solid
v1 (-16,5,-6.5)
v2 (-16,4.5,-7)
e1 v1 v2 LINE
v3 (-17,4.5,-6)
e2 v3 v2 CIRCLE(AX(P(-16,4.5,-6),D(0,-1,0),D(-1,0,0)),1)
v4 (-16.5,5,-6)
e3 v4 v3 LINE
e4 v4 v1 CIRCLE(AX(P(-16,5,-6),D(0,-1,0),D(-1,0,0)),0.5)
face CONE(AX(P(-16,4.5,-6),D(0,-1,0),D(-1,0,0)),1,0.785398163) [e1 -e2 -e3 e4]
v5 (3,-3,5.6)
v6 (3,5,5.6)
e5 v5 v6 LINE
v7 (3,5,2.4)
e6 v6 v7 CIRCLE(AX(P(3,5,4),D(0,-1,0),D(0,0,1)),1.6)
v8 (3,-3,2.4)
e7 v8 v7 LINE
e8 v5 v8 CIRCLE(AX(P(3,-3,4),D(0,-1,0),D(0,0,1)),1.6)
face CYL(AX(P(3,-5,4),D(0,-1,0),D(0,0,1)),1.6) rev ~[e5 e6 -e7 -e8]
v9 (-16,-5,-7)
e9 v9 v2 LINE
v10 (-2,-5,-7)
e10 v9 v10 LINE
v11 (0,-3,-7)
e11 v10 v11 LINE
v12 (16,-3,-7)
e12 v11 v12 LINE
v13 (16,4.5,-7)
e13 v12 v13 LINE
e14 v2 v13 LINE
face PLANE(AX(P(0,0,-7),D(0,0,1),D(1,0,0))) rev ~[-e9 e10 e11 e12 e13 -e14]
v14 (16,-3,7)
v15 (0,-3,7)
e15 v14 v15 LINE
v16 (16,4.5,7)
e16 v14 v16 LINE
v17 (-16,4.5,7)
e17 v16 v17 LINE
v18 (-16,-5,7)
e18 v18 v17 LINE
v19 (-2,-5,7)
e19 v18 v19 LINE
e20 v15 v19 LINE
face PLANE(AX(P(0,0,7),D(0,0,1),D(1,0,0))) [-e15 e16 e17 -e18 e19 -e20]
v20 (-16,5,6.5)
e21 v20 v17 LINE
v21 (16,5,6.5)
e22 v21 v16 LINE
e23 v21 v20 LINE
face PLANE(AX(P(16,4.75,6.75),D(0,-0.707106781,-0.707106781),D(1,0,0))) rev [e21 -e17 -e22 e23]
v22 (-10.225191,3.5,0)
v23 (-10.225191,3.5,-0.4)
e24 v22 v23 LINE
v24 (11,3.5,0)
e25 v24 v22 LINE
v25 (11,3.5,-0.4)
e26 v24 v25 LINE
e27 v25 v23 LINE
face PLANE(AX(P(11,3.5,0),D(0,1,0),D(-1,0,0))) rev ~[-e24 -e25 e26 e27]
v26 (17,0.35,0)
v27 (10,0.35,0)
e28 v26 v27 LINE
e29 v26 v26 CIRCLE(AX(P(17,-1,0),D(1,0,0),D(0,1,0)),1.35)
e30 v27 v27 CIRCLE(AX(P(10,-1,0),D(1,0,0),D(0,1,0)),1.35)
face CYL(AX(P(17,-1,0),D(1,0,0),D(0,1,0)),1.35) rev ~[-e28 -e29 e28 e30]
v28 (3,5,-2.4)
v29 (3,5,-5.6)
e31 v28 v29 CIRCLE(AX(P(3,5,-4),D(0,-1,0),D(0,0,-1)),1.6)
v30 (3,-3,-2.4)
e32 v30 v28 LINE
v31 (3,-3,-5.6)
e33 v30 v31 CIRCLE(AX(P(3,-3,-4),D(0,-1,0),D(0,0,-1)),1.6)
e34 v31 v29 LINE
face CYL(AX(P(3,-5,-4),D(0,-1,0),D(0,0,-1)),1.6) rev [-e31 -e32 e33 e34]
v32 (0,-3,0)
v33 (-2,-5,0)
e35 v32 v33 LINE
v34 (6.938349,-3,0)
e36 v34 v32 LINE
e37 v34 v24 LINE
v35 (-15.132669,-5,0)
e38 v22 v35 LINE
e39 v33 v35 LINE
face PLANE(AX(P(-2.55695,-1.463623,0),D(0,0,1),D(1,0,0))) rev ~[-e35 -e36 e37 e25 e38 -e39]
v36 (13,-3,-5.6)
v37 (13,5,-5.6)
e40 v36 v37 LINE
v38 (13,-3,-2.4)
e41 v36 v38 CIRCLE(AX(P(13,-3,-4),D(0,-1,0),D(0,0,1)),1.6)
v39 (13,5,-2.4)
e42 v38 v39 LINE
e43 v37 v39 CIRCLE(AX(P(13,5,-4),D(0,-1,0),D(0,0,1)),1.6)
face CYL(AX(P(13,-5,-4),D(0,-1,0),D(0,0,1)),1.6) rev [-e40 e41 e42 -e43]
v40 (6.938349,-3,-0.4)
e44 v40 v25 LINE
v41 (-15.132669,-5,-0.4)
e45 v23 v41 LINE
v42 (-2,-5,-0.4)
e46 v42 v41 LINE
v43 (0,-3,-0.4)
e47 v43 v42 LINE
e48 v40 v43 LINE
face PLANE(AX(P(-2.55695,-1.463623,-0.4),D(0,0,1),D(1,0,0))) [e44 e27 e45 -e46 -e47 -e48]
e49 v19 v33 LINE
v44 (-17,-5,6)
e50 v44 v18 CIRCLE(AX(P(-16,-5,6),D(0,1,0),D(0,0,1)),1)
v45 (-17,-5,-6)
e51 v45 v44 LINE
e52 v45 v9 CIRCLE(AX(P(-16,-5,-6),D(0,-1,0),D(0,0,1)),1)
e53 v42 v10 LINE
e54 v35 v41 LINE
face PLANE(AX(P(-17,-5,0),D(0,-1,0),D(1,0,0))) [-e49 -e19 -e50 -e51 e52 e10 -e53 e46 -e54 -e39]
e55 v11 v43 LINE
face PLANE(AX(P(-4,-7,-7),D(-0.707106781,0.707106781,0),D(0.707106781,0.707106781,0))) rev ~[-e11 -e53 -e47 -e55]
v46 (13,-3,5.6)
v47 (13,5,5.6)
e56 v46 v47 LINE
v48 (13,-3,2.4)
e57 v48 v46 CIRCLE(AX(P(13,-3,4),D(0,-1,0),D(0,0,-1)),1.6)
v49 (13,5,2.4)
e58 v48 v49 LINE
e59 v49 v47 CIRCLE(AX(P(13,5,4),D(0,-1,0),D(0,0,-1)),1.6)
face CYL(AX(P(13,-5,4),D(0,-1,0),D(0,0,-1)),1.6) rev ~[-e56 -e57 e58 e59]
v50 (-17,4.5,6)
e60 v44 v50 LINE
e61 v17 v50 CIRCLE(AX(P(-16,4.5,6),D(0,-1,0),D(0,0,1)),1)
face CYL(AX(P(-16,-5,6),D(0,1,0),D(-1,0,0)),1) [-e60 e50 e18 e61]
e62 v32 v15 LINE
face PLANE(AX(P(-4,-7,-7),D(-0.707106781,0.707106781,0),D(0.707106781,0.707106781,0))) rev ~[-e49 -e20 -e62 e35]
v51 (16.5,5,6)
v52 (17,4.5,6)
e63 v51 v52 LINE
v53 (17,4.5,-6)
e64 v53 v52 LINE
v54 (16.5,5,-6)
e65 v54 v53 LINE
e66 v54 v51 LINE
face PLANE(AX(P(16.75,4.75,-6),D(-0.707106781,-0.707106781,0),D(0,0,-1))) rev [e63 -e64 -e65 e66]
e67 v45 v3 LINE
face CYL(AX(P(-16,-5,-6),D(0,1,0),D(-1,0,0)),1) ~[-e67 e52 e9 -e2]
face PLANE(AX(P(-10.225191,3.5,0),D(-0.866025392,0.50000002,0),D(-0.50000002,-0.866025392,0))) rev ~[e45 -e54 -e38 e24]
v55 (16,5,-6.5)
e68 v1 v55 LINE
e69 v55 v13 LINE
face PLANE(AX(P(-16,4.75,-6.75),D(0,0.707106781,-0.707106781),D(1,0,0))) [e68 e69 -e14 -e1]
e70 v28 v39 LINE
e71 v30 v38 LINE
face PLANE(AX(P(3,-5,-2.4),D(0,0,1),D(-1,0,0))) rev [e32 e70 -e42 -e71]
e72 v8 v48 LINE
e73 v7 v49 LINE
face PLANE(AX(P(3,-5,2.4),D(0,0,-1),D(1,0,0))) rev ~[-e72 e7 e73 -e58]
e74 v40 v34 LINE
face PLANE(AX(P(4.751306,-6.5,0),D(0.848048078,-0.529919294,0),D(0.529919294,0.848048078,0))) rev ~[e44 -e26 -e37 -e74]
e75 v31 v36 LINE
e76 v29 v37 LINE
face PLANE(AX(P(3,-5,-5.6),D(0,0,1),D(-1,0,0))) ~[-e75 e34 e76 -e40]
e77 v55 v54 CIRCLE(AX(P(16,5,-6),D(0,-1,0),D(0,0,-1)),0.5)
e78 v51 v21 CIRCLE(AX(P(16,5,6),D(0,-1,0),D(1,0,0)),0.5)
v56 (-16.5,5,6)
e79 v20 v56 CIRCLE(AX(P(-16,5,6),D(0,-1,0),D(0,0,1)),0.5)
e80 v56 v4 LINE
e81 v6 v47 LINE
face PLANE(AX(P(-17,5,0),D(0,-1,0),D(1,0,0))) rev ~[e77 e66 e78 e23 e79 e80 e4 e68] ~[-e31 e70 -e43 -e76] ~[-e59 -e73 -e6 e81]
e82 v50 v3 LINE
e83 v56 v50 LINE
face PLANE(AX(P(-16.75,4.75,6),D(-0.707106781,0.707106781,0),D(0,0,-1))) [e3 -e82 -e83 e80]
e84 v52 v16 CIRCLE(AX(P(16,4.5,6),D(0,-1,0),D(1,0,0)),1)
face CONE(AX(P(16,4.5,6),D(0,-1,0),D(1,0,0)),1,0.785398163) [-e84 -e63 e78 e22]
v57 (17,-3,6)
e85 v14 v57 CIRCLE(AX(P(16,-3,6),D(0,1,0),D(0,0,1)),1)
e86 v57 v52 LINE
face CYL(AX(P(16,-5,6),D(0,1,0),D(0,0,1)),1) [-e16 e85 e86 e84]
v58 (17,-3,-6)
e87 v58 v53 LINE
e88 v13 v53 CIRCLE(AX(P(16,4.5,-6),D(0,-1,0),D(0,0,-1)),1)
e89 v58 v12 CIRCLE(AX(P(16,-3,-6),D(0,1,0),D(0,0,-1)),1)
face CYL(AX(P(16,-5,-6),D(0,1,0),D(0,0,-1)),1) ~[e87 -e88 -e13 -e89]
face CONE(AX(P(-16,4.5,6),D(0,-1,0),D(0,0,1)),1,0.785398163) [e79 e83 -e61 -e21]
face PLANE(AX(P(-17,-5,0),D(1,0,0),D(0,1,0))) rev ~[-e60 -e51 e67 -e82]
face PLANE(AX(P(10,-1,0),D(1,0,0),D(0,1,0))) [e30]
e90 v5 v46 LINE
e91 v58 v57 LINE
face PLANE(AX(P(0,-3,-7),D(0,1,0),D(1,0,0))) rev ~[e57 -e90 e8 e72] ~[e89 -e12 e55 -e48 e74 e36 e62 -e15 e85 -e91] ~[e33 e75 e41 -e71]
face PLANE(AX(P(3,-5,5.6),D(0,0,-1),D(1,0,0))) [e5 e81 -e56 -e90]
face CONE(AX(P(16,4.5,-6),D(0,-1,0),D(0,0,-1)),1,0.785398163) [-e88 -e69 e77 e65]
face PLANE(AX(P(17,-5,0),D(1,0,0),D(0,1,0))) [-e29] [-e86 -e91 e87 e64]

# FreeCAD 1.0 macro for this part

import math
import FreeCAD as App
import Part
import Sketcher
Q = App.Units.Quantity


def edges_at(feature, points):
    """Names of the edges that pass closest to the given points."""
    edges = feature.Shape.Edges
    near = lambda p: min(range(len(edges)), key=lambda i: edges[i].distToShape(Part.Vertex(*p))[0])
    return sorted({f"Edge{near(p) + 1}" for p in points})


def add_polygon(sketch, points):
    """Adds a closed chain of lines whose ends are joined by coincident constraints."""
    first, n = sketch.GeometryCount, len(points)
    for a, b in zip(points, points[1:] + points[:1]):
        sketch.addGeometry(Part.LineSegment(App.Vector(*a, 0), App.Vector(*b, 0)), False)
    for i in range(n):
        sketch.addConstraint(Sketcher.Constraint("Coincident", first + i, 2, first + (i + 1) % n, 1))

doc = App.newDocument("Part")
body = doc.addObject("PartDesign::Body", "Body")

# Sketch on XY plane
sketch1 = doc.addObject("Sketcher::SketchObject", "Sketch")
body.addObject(sketch1)
sketch1.AttachmentSupport = (doc.XY_Plane, [""])
sketch1.MapMode = "FlatFace"
add_polygon(sketch1, [(-17, 5), (-17, -5), (17, -5), (17, 5)])  # lines 0-3
sketch1.addConstraint([
    Sketcher.Constraint("Vertical", 0),
    Sketcher.Constraint("Horizontal", 1),
    Sketcher.Constraint("Vertical", 2),
    Sketcher.Constraint("Horizontal", 3),
    Sketcher.Constraint("Symmetric", 0, 2, 2, 2, -1, 1),
    Sketcher.Constraint("DistanceX", 1, 1, 1, 2, 34.0),
    Sketcher.Constraint("DistanceY", 0, 2, 0, 1, 10.0),
])
pad1 = doc.addObject("PartDesign::Pad", "Pad")
body.addObject(pad1)
pad1.Profile = sketch1
pad1.Length = 14
pad1.Midplane = True

# Sketch on XY plane
sketch2 = doc.addObject("Sketcher::SketchObject", "Sketch001")
body.addObject(sketch2)
sketch2.AttachmentSupport = (doc.XY_Plane, [""])
sketch2.MapMode = "FlatFace"
add_polygon(sketch2, [(5, -6), (11, 4), (-10, 4), (-16, -6)])  # lines 0-3
sketch2.addConstraint([
    Sketcher.Constraint("Horizontal", 1),
    Sketcher.Constraint("Horizontal", 3),
    Sketcher.Constraint("Angle", 0, Q("57.999998 deg")),
    Sketcher.Constraint("Angle", 2, Q("-120.000001 deg")),
    Sketcher.Constraint("DistanceX", -1, 1, 0, 2, 11.0),
    Sketcher.Constraint("DistanceY", 2, 2, 1, 2, 10.0),
    Sketcher.Constraint("DistanceX", 3, 1, 3, 2, 20.75),
    Sketcher.Constraint("DistanceY", -1, 1, 0, 2, 3.5),
])
pocket1 = doc.addObject("PartDesign::Pocket", "Pocket")
body.addObject(pocket1)
pocket1.Profile = sketch2
pocket1.Length = 0.4
doc.recompute()

fillet = doc.addObject("PartDesign::Fillet", "Fillet")
body.addObject(fillet)
fillet.Base = (pocket1, edges_at(pocket1, [
    (17, 0, 7),
    (17, 0, -7),
    (-17, 0, -7),
    (-17, 0, 7),
]))
fillet.Radius = 1

# Sketch on XZ plane
sketch3 = doc.addObject("Sketcher::SketchObject", "Sketch002")
body.addObject(sketch3)
sketch3.AttachmentSupport = (doc.XZ_Plane, [""])
sketch3.MapMode = "FlatFace"
sketch3.AttachmentOffset = App.Placement(App.Vector(0, 0, 5), App.Rotation())
sketch3.addGeometry([
    Part.ArcOfCircle(Part.Circle(App.Vector(3, 4, 0), App.Vector(0, 0, 1), 1.6), math.radians(90), math.radians(270)),
    Part.LineSegment(App.Vector(3, 2.4, 0), App.Vector(13, 2.4, 0)),
    Part.ArcOfCircle(Part.Circle(App.Vector(13, 4, 0), App.Vector(0, 0, 1), 1.6), math.radians(-90), math.radians(90)),
    Part.LineSegment(App.Vector(13, 5.6, 0), App.Vector(3, 5.6, 0)),
], False)
sketch3.addConstraint([
    Sketcher.Constraint("Tangent", 0, 2, 1, 1),
    Sketcher.Constraint("Tangent", 1, 2, 2, 1),
    Sketcher.Constraint("Tangent", 2, 2, 3, 1),
    Sketcher.Constraint("Tangent", 3, 2, 0, 1),
    Sketcher.Constraint("Horizontal", 1),
    Sketcher.Constraint("Horizontal", 3),
    Sketcher.Constraint("Radius", 0, 1.6),
    Sketcher.Constraint("DistanceX", 1, 1, 1, 2, 10.0),
    Sketcher.Constraint("DistanceX", -1, 1, 0, 3, 3.0),
    Sketcher.Constraint("DistanceY", -1, 1, 0, 3, 4.0),
])
pocket2 = doc.addObject("PartDesign::Pocket", "Pocket001")
body.addObject(pocket2)
pocket2.Profile = sketch3
pocket2.Type = "ThroughAll"
doc.recompute()

mirrored = doc.addObject("PartDesign::Mirrored", "Mirrored")
body.addObject(mirrored)
mirrored.Originals = [pocket2]
mirrored.MirrorPlane = (doc.XY_Plane, [""])
body.Tip = mirrored
doc.recompute()

chamfer = doc.addObject("PartDesign::Chamfer", "Chamfer")
body.addObject(chamfer)
chamfer.Base = (mirrored, edges_at(mirrored, [(0, 5, -7)]))
chamfer.Size = 0.5

# Sketch on YZ plane
sketch4 = doc.addObject("Sketcher::SketchObject", "Sketch003")
body.addObject(sketch4)
sketch4.AttachmentSupport = (doc.YZ_Plane, [""])
sketch4.MapMode = "FlatFace"
sketch4.AttachmentOffset = App.Placement(App.Vector(0, 0, 17), App.Rotation())
sketch4.addGeometry(Part.Circle(App.Vector(-1, 0, 0), App.Vector(0, 0, 1), 1.4), False)
sketch4.addConstraint([
    Sketcher.Constraint("PointOnObject", 0, 3, -1),
    Sketcher.Constraint("Diameter", 0, 2.7),
    Sketcher.Constraint("DistanceX", 0, 3, -1, 1, 1.0),
])
pocket3 = doc.addObject("PartDesign::Pocket", "Pocket002")
body.addObject(pocket3)
pocket3.Profile = sketch4
pocket3.Length = 7

# Sketch on XY plane
sketch5 = doc.addObject("Sketcher::SketchObject", "Sketch004")
body.addObject(sketch5)
sketch5.AttachmentSupport = (doc.XY_Plane, [""])
sketch5.MapMode = "FlatFace"
sketch5.AttachmentOffset = App.Placement(App.Vector(0, 0, -7), App.Rotation())
add_polygon(sketch5, [(-4, -7), (0, -3), (22.5, -3), (22.5, -7)])  # lines 0-3
sketch5.addConstraint([
    Sketcher.Constraint("Horizontal", 1),
    Sketcher.Constraint("Vertical", 2),
    Sketcher.Constraint("Horizontal", 3),
    Sketcher.Constraint("PointOnObject", 0, 2, -2),
    Sketcher.Constraint("DistanceY", 2, 2, 2, 1, 4.0),
    Sketcher.Constraint("Angle", 0, Q("45 deg")),
    Sketcher.Constraint("DistanceY", 0, 2, -1, 1, 3.0),
    Sketcher.Constraint("DistanceX", 1, 1, 1, 2, 22.51627),
])
pocket4 = doc.addObject("PartDesign::Pocket", "Pocket003")
body.addObject(pocket4)
pocket4.Profile = sketch5
pocket4.Type = "ThroughAll"
pocket4.Reversed = True

doc.recompute()
